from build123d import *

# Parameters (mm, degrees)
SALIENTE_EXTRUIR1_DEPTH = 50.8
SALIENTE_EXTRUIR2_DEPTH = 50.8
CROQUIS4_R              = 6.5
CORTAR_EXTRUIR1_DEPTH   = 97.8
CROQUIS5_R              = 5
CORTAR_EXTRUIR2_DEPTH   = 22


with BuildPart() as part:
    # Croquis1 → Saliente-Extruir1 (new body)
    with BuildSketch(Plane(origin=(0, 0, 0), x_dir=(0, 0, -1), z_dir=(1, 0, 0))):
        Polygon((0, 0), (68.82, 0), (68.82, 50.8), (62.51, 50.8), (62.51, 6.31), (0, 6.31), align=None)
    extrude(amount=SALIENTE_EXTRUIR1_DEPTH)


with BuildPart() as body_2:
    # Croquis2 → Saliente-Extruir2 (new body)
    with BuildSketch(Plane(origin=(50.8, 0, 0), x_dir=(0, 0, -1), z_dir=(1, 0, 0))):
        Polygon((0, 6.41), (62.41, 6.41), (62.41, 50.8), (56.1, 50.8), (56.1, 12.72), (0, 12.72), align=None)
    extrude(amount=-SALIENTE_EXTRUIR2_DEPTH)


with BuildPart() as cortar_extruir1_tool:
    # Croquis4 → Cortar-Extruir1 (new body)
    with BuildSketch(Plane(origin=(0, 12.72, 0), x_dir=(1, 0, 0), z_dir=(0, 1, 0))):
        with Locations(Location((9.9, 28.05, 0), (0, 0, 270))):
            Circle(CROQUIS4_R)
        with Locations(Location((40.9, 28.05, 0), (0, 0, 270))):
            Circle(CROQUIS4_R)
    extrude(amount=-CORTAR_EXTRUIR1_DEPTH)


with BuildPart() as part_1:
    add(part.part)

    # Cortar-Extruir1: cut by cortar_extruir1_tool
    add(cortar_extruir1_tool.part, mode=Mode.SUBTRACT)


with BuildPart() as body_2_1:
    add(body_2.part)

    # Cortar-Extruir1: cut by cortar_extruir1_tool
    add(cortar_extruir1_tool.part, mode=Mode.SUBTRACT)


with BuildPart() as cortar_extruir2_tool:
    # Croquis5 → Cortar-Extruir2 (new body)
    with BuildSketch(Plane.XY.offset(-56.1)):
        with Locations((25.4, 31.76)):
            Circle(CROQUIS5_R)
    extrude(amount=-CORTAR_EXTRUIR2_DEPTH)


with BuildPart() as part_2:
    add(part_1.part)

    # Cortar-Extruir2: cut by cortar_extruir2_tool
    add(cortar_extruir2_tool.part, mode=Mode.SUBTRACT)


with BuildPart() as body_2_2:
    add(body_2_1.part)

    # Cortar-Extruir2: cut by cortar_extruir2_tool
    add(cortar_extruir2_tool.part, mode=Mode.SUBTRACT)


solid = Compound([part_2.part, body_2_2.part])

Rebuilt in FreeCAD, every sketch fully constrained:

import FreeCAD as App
import Part
import Sketcher

V = App.Vector

doc = App.newDocument("Part")
body = doc.addObject("PartDesign::Body", "Body")

# Sketch on YZ plane
sketch1 = body.newObject("Sketcher::SketchObject", "Sketch")
sketch1.AttachmentSupport = (doc.getObject("YZ_Plane"), [""])
sketch1.MapMode = "FlatFace"
sketch1.addGeometry(Part.LineSegment(V(0, 0, 0), V(0, -69, 0)), False)
sketch1.addGeometry(Part.LineSegment(V(0, -69, 0), V(51, -69, 0)), False)
sketch1.addGeometry(Part.LineSegment(V(51, -69, 0), V(51, -63, 0)), False)
sketch1.addGeometry(Part.LineSegment(V(51, -63, 0), V(6, -63, 0)), False)
sketch1.addGeometry(Part.LineSegment(V(6, -63, 0), V(6, 0, 0)), False)
sketch1.addGeometry(Part.LineSegment(V(6, 0, 0), V(0, 0, 0)), False)
sketch1.addConstraint(Sketcher.Constraint("Coincident", 0, 2, 1, 1))
sketch1.addConstraint(Sketcher.Constraint("Coincident", 1, 2, 2, 1))
sketch1.addConstraint(Sketcher.Constraint("Coincident", 2, 2, 3, 1))
sketch1.addConstraint(Sketcher.Constraint("Coincident", 3, 2, 4, 1))
sketch1.addConstraint(Sketcher.Constraint("Coincident", 4, 2, 5, 1))
sketch1.addConstraint(Sketcher.Constraint("Coincident", 5, 2, 0, 1))
sketch1.addConstraint(Sketcher.Constraint("Vertical", 0))
sketch1.addConstraint(Sketcher.Constraint("Horizontal", 1))
sketch1.addConstraint(Sketcher.Constraint("Vertical", 2))
sketch1.addConstraint(Sketcher.Constraint("Horizontal", 3))
sketch1.addConstraint(Sketcher.Constraint("Vertical", 4))
sketch1.addConstraint(Sketcher.Constraint("Horizontal", 5))
sketch1.addConstraint(Sketcher.Constraint("Coincident", 5, 2, -1, 1))
sketch1.addConstraint(Sketcher.Constraint("Equal", 5, 2))
sketch1.addConstraint(Sketcher.Constraint("DistanceX", 1, 1, 1, 2, 50.8))
sketch1.addConstraint(Sketcher.Constraint("DistanceX", 3, 2, 3, 1, 44.49))
sketch1.addConstraint(Sketcher.Constraint("DistanceY", 0, 2, 0, 1, 68.82))
pad1 = body.newObject("PartDesign::Pad", "Pad")
pad1.Profile = sketch1
pad1.Length = 50.8
body2 = doc.addObject("PartDesign::Body", "Body001")

# Sketch on YZ plane
sketch2 = body2.newObject("Sketcher::SketchObject", "Sketch001")
sketch2.AttachmentSupport = (doc.getObject("YZ_Plane001"), [""])
sketch2.MapMode = "FlatFace"
sketch2.AttachmentOffset = App.Placement(V(0, 0, 50.8), App.Rotation())
sketch2.addGeometry(Part.LineSegment(V(6, 0, 0), V(6, -62, 0)), False)
sketch2.addGeometry(Part.LineSegment(V(6, -62, 0), V(51, -62, 0)), False)
sketch2.addGeometry(Part.LineSegment(V(51, -62, 0), V(51, -56, 0)), False)
sketch2.addGeometry(Part.LineSegment(V(51, -56, 0), V(13, -56, 0)), False)
sketch2.addGeometry(Part.LineSegment(V(13, -56, 0), V(13, 0, 0)), False)
sketch2.addGeometry(Part.LineSegment(V(13, 0, 0), V(6, 0, 0)), False)
sketch2.addConstraint(Sketcher.Constraint("Coincident", 0, 2, 1, 1))
sketch2.addConstraint(Sketcher.Constraint("Coincident", 1, 2, 2, 1))
sketch2.addConstraint(Sketcher.Constraint("Coincident", 2, 2, 3, 1))
sketch2.addConstraint(Sketcher.Constraint("Coincident", 3, 2, 4, 1))
sketch2.addConstraint(Sketcher.Constraint("Coincident", 4, 2, 5, 1))
sketch2.addConstraint(Sketcher.Constraint("Coincident", 5, 2, 0, 1))
sketch2.addConstraint(Sketcher.Constraint("Vertical", 0))
sketch2.addConstraint(Sketcher.Constraint("Horizontal", 1))
sketch2.addConstraint(Sketcher.Constraint("Vertical", 2))
sketch2.addConstraint(Sketcher.Constraint("Horizontal", 3))
sketch2.addConstraint(Sketcher.Constraint("Vertical", 4))
sketch2.addConstraint(Sketcher.Constraint("Horizontal", 5))
sketch2.addConstraint(Sketcher.Constraint("PointOnObject", 4, 2, -1))
sketch2.addConstraint(Sketcher.Constraint("Equal", 5, 2))
sketch2.addConstraint(Sketcher.Constraint("DistanceY", 4, 1, 4, 2, 56.1))
sketch2.addConstraint(Sketcher.Constraint("DistanceX", 1, 1, 1, 2, 44.39))
sketch2.addConstraint(Sketcher.Constraint("DistanceX", 3, 2, 3, 1, 38.08))
sketch2.addConstraint(Sketcher.Constraint("DistanceX", -1, 1, 1, 2, 50.8))
pad2 = body2.newObject("PartDesign::Pad", "Pad001")
pad2.Profile = sketch2
pad2.Length = 50.8
pad2.Reversed = True
body3 = doc.addObject("PartDesign::Body", "Body002")
body3.AllowCompound = True

# Sketch on XZ plane
sketch3 = body3.newObject("Sketcher::SketchObject", "Sketch002")
sketch3.AttachmentSupport = (doc.getObject("XZ_Plane002"), [""])
sketch3.MapMode = "FlatFace"
sketch3.AttachmentOffset = App.Placement(V(0, 0, -12.72), App.Rotation())
sketch3.addGeometry(Part.Circle(V(10, -28, 0), V(0, 0, 1), 6), False)
sketch3.addGeometry(Part.Circle(V(41, -28, 0), V(0, 0, 1), 6), False)
sketch3.addConstraint(Sketcher.Constraint("Equal", 0, 1))
sketch3.addConstraint(Sketcher.Constraint("Horizontal", 0, 3, 1, 3))
sketch3.addConstraint(Sketcher.Constraint("Diameter", 0, 13.0))
sketch3.addConstraint(Sketcher.Constraint("DistanceX", 0, 3, 1, 3, 31.0))
sketch3.addConstraint(Sketcher.Constraint("DistanceX", -1, 1, 0, 3, 9.9))
sketch3.addConstraint(Sketcher.Constraint("DistanceY", 0, 3, -1, 1, 28.05))
pad3 = body3.newObject("PartDesign::Pad", "Pad002")
pad3.Profile = sketch3
pad3.Length = 97.8
doc.recompute()

body4 = doc.addObject("PartDesign::Body", "Body003")
body4.BaseFeature = body3
boolean = body.newObject("PartDesign::Boolean", "Boolean")
boolean.Type = "Cut"
boolean.addObjects([body4])
doc.recompute()

boolean2 = body2.newObject("PartDesign::Boolean", "Boolean001")
boolean2.Type = "Cut"
boolean2.addObjects([body3])
body5 = doc.addObject("PartDesign::Body", "Body004")

# Sketch on XY plane
sketch4 = body5.newObject("Sketcher::SketchObject", "Sketch003")
sketch4.AttachmentSupport = (doc.getObject("XY_Plane004"), [""])
sketch4.MapMode = "FlatFace"
sketch4.AttachmentOffset = App.Placement(V(0, 0, -56.1), App.Rotation())
sketch4.addGeometry(Part.Circle(V(25, 32, 0), V(0, 0, 1), 5), False)
sketch4.addConstraint(Sketcher.Constraint("Diameter", 0, 10.0))
sketch4.addConstraint(Sketcher.Constraint("DistanceX", -1, 1, 0, 3, 25.4))
sketch4.addConstraint(Sketcher.Constraint("DistanceY", -1, 1, 0, 3, 31.76))
pad4 = body5.newObject("PartDesign::Pad", "Pad003")
pad4.Profile = sketch4
pad4.Length = 22
pad4.Reversed = True
doc.recompute()

body6 = doc.addObject("PartDesign::Body", "Body005")
body6.BaseFeature = body5
boolean3 = body.newObject("PartDesign::Boolean", "Boolean002")
boolean3.Type = "Cut"
boolean3.addObjects([body6])
doc.recompute()

boolean4 = body2.newObject("PartDesign::Boolean", "Boolean003")
boolean4.Type = "Cut"
boolean4.addObjects([body5])

doc.recompute()
